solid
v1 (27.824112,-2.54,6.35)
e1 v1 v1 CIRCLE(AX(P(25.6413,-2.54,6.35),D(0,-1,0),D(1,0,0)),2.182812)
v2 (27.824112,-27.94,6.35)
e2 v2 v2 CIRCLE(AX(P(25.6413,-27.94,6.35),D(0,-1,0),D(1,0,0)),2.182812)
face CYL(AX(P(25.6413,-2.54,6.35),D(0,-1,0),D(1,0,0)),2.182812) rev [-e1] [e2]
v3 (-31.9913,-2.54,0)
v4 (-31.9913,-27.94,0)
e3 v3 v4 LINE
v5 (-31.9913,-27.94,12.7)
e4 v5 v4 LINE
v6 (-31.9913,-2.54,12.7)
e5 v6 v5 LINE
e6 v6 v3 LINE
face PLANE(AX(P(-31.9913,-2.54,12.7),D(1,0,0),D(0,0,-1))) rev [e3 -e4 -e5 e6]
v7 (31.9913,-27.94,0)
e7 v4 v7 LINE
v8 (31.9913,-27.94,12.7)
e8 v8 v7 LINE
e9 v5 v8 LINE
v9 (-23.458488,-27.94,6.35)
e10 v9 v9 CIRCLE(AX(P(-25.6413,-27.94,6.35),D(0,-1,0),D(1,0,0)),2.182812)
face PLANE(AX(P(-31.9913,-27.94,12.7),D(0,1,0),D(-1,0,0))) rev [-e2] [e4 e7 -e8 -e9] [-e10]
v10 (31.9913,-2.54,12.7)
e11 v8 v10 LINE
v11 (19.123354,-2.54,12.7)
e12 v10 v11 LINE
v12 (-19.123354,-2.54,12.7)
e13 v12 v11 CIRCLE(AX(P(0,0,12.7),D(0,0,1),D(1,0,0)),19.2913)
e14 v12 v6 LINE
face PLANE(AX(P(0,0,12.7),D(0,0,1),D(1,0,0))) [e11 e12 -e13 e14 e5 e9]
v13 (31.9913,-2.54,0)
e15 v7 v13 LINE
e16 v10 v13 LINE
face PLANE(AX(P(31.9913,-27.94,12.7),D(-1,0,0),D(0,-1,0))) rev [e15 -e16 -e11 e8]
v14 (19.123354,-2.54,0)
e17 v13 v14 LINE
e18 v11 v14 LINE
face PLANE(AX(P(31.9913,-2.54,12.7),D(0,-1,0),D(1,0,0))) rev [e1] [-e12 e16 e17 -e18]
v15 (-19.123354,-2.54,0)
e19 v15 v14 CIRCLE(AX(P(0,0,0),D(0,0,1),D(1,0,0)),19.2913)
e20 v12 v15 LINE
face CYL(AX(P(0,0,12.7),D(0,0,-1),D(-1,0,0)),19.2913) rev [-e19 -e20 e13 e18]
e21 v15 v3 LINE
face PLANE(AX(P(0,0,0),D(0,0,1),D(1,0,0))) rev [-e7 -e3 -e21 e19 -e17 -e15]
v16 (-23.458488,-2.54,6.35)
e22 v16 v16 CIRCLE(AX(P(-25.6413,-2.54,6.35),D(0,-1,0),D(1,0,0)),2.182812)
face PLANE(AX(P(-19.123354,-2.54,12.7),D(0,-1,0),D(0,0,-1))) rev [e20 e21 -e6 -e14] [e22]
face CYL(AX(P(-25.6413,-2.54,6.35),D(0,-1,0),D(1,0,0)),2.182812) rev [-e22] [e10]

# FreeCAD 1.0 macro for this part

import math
import FreeCAD as App
import Part
import Sketcher
Q = App.Units.Quantity

doc = App.newDocument("Part")
body = doc.addObject("PartDesign::Body", "Body")

sketch1 = body.newObject("Sketcher::SketchObject", "Sketch")
sketch1.AttachmentSupport = (doc.getObject("XY_Plane"), [""])
sketch1.MapMode = "FlatFace"
sketch1.addGeometry(Part.LineSegment(App.Vector(-19, -3, 0), App.Vector(-32, -3, 0)), False)
sketch1.addGeometry(Part.LineSegment(App.Vector(-32, -3, 0), App.Vector(-32, -28, 0)), False)
sketch1.addGeometry(Part.LineSegment(App.Vector(-32, -28, 0), App.Vector(32, -28, 0)), False)
sketch1.addGeometry(Part.LineSegment(App.Vector(32, -28, 0), App.Vector(32, -3, 0)), False)
sketch1.addGeometry(Part.LineSegment(App.Vector(32, -3, 0), App.Vector(19, -3, 0)), False)
sketch1.addGeometry(Part.ArcOfCircle(Part.Circle(App.Vector(0, 0, 0), App.Vector(0, 0, 1), 19), math.radians(-172), math.radians(-8)), False)
sketch1.addConstraint(Sketcher.Constraint("Coincident", 0, 2, 1, 1))
sketch1.addConstraint(Sketcher.Constraint("Coincident", 1, 2, 2, 1))
sketch1.addConstraint(Sketcher.Constraint("Coincident", 2, 2, 3, 1))
sketch1.addConstraint(Sketcher.Constraint("Coincident", 3, 2, 4, 1))
sketch1.addConstraint(Sketcher.Constraint("Coincident", 4, 2, 5, 2))
sketch1.addConstraint(Sketcher.Constraint("Coincident", 5, 1, 0, 1))
sketch1.addConstraint(Sketcher.Constraint("Horizontal", 0))
sketch1.addConstraint(Sketcher.Constraint("Vertical", 1))
sketch1.addConstraint(Sketcher.Constraint("Horizontal", 2))
sketch1.addConstraint(Sketcher.Constraint("Vertical", 3))
sketch1.addConstraint(Sketcher.Constraint("Horizontal", 4))
sketch1.addConstraint(Sketcher.Constraint("Coincident", 5, 3, -1, 1))
sketch1.addConstraint(Sketcher.Constraint("Symmetric", 0, 2, 3, 2, -2))
sketch1.addConstraint(Sketcher.Constraint("DistanceY", 1, 2, 1, 1, Q("1 in")))
sketch1.addConstraint(Sketcher.Constraint("DistanceY", 0, 2, -1, 1, Q("0.1 in")))
sketch1.addConstraint(Sketcher.Constraint("Radius", 5, Q("0.7595 in")))
sketch1.addConstraint(Sketcher.Constraint("DistanceX", 2, 1, 2, 2, Q("2.519 in")))
pad1 = body.newObject("PartDesign::Pad", "Pad")
pad1.Profile = sketch1
pad1.Length = Q("0.5 in")

sketch2 = body.newObject("Sketcher::SketchObject", "Sketch001")
sketch2.AttachmentSupport = (doc.getObject("XZ_Plane"), [""])
sketch2.MapMode = "FlatFace"
sketch2.AttachmentOffset = App.Placement(App.Vector(0, 0, 1.1 * 25.4), App.Rotation())
sketch2.addGeometry(Part.Circle(App.Vector(-25.6, 6.3, 0), App.Vector(0, 0, 1), 2.2), False)
sketch2.addGeometry(Part.Circle(App.Vector(25.6, 6.3, 0), App.Vector(0, 0, 1), 2.2), False)
sketch2.addConstraint(Sketcher.Constraint("Equal", 0, 1))
sketch2.addConstraint(Sketcher.Constraint("Symmetric", 0, 3, 1, 3, -2))
sketch2.addConstraint(Sketcher.Constraint("Diameter", 0, Q("0.171875 in")))
sketch2.addConstraint(Sketcher.Constraint("DistanceY", -1, 1, 0, 3, Q("0.25 in")))
sketch2.addConstraint(Sketcher.Constraint("DistanceX", 0, 3, 1, 3, Q("2.019 in")))
pocket1 = body.newObject("PartDesign::Pocket", "Pocket")
pocket1.Profile = sketch2
pocket1.Type = "ThroughAll"

doc.recompute()
